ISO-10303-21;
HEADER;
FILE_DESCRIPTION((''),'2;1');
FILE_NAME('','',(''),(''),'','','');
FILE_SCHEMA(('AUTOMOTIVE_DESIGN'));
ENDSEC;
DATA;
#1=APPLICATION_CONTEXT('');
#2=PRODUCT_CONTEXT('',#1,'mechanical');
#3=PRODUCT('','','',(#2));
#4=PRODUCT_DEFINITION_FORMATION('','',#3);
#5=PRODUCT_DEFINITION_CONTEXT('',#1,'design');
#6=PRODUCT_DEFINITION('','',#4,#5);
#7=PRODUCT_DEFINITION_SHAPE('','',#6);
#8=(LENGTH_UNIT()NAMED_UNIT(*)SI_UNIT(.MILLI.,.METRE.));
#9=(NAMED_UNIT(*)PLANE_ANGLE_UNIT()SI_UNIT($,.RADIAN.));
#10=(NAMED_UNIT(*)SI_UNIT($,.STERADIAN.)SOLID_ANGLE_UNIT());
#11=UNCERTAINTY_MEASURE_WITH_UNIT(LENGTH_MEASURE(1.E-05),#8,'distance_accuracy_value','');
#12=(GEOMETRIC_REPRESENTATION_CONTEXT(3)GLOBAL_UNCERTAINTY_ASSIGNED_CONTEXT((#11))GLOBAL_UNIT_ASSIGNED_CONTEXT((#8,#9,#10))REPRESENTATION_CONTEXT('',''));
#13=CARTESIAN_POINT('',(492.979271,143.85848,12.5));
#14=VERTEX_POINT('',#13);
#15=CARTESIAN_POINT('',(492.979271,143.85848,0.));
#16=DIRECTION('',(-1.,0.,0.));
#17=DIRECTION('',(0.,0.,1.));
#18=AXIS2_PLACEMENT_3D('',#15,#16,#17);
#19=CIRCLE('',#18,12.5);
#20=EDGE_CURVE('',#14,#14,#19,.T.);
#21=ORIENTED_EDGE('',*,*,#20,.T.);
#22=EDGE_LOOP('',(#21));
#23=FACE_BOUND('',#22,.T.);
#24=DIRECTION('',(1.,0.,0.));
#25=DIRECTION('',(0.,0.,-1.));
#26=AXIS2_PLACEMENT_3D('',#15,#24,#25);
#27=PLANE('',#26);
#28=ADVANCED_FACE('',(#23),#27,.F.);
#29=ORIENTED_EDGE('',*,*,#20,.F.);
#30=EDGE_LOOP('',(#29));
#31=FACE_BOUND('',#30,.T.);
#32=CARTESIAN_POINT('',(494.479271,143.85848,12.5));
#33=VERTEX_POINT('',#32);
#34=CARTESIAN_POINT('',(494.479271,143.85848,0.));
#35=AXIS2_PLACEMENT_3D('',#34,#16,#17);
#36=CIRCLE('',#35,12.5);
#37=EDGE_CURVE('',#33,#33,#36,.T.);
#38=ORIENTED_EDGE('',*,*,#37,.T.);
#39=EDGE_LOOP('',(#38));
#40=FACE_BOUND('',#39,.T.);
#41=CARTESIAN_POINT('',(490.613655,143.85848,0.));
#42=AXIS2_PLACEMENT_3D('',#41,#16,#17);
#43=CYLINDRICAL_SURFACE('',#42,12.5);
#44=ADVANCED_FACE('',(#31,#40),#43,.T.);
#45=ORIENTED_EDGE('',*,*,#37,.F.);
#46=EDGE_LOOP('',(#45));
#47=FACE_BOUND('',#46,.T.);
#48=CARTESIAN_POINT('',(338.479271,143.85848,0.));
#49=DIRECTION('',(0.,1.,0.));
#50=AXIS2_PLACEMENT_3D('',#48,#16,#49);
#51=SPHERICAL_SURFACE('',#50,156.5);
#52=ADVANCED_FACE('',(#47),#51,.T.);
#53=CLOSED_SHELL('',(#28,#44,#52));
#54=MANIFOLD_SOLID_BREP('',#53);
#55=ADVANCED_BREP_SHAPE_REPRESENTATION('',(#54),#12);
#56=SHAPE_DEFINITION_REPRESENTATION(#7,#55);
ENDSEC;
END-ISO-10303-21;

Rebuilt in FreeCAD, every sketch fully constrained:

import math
import FreeCAD as App
import Part
import Sketcher
from FreeCAD import Vector
Q = App.Units.Quantity

doc = App.newDocument("Part")
body = doc.addObject("PartDesign::Body", "Body")

# Sketch on XY plane
sketch1 = body.newObject("Sketcher::SketchObject", "Sketch")
sketch1.AttachmentSupport = (doc.getObject("XY_Plane"), [""])
sketch1.MapMode = "FlatFace"
sketch1.addGeometry([
    Part.LineSegment(Vector(492.979271, 156.35848, 0), Vector(492.979271, 143.85848, 0)),
    Part.LineSegment(Vector(492.979271, 143.85848, 0), Vector(494.979271, 143.85848, 0)),
    Part.ArcOfCircle(Part.Circle(Vector(338.479271, 143.85848, 0), Vector(0, 0, 1), 156.5), math.radians(0), math.radians(4.58122)),
    Part.LineSegment(Vector(494.479271, 156.35848, 0), Vector(492.979271, 156.35848, 0)),
], False)
sketch1.addGeometry(Part.LineSegment(Vector(338.479271, 143.85848, 0), Vector(494.979271, 143.85848, 0)), True)  # axis
sketch1.addConstraint([
    Sketcher.Constraint("Coincident", 0, 2, 1, 1),
    Sketcher.Constraint("Coincident", 1, 2, 2, 1),
    Sketcher.Constraint("Coincident", 2, 2, 3, 1),
    Sketcher.Constraint("Coincident", 3, 2, 0, 1),
    Sketcher.Constraint("Vertical", 0),
    Sketcher.Constraint("Horizontal", 1),
    Sketcher.Constraint("Horizontal", 3),
    Sketcher.Constraint("Horizontal", 4),
    Sketcher.Constraint("Coincident", 4, 1, 2, 3),
    Sketcher.Constraint("Coincident", 4, 2, 1, 2),
    Sketcher.Constraint("Radius", 2, Q("156.5 mm")),
    Sketcher.Constraint("DistanceX", 1, 1, 1, 2, Q("2 mm")),
    Sketcher.Constraint("DistanceX", 3, 2, 3, 1, Q("1.5 mm")),
    Sketcher.Constraint("DistanceX", -1, 1, 2, 3, Q("338.479271 mm")),
    Sketcher.Constraint("DistanceY", -1, 1, 2, 3, Q("143.85848 mm")),
])
revolution = body.newObject("PartDesign::Revolution", "Revolution")
revolution.Profile = sketch1
revolution.ReferenceAxis = (sketch1, ["Axis0"])
revolution.Angle = 360

doc.recompute()
